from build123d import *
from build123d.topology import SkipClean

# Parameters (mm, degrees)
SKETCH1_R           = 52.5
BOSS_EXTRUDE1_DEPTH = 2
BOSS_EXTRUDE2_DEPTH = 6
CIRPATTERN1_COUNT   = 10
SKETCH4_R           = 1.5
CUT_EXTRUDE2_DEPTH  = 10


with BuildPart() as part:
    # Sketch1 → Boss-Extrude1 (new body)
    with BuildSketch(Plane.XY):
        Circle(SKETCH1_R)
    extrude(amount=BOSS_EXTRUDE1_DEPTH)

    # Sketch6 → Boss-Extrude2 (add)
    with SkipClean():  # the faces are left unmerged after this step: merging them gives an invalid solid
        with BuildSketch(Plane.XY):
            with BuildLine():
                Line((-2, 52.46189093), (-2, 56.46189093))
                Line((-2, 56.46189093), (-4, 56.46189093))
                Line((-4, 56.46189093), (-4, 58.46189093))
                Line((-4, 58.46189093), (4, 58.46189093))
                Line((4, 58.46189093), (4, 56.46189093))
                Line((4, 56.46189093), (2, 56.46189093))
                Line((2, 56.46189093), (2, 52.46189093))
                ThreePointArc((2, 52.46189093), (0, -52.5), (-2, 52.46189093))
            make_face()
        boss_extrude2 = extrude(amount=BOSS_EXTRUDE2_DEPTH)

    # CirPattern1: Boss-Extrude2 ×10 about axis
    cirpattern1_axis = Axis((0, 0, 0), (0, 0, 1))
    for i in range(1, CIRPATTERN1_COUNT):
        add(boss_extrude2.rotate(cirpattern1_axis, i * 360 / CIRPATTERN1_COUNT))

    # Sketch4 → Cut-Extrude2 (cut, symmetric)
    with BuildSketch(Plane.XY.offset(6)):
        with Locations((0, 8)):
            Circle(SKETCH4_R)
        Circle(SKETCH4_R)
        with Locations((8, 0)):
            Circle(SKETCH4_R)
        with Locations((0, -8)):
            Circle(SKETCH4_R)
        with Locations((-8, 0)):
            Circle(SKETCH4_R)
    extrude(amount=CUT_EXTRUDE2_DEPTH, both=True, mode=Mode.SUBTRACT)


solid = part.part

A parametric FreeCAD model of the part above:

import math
import FreeCAD as App
import Part
import Sketcher

V = App.Vector
Q = App.Units.Quantity

doc = App.newDocument("Part")
body = doc.addObject("PartDesign::Body", "Body")

sketch1 = body.newObject("Sketcher::SketchObject", "Sketch")
sketch1.AttachmentSupport = (doc.getObject("XY_Plane"), [""])
sketch1.MapMode = "FlatFace"
sketch1.addGeometry(Part.Circle(V(0, 0, 0), V(0, 0, 1), 52.5), False)
sketch1.addConstraint(Sketcher.Constraint("Coincident", 0, 3, -1, 1))
sketch1.addConstraint(Sketcher.Constraint("Diameter", 0, Q("105 mm")))
pad1 = body.newObject("PartDesign::Pad", "Pad")
pad1.Profile = sketch1
pad1.Length = 2

sketch2 = body.newObject("Sketcher::SketchObject", "Sketch001")
sketch2.AttachmentSupport = (doc.getObject("XY_Plane"), [""])
sketch2.MapMode = "FlatFace"
sketch2.addGeometry(Part.LineSegment(V(-2, 56.461891, 0), V(-2, 52.461891, 0)), False)
sketch2.addGeometry(Part.ArcOfCircle(Part.Circle(V(0, 0, 0), V(0, 0, 1), 52.5), math.radians(92.183225), math.radians(447.816775)), False)
sketch2.addGeometry(Part.LineSegment(V(2, 52.461891, 0), V(2, 56.461891, 0)), False)
sketch2.addGeometry(Part.LineSegment(V(2, 56.461891, 0), V(4, 56.461891, 0)), False)
sketch2.addGeometry(Part.LineSegment(V(4, 56.461891, 0), V(4, 58.461891, 0)), False)
sketch2.addGeometry(Part.LineSegment(V(4, 58.461891, 0), V(-4, 58.461891, 0)), False)
sketch2.addGeometry(Part.LineSegment(V(-4, 58.461891, 0), V(-4, 56.461891, 0)), False)
sketch2.addGeometry(Part.LineSegment(V(-4, 56.461891, 0), V(-2, 56.461891, 0)), False)
sketch2.addConstraint(Sketcher.Constraint("Coincident", 0, 2, 1, 1))
sketch2.addConstraint(Sketcher.Constraint("Coincident", 1, 2, 2, 1))
sketch2.addConstraint(Sketcher.Constraint("Coincident", 2, 2, 3, 1))
sketch2.addConstraint(Sketcher.Constraint("Coincident", 3, 2, 4, 1))
sketch2.addConstraint(Sketcher.Constraint("Coincident", 4, 2, 5, 1))
sketch2.addConstraint(Sketcher.Constraint("Coincident", 5, 2, 6, 1))
sketch2.addConstraint(Sketcher.Constraint("Coincident", 6, 2, 7, 1))
sketch2.addConstraint(Sketcher.Constraint("Coincident", 7, 2, 0, 1))
sketch2.addConstraint(Sketcher.Constraint("Vertical", 0))
sketch2.addConstraint(Sketcher.Constraint("Vertical", 2))
sketch2.addConstraint(Sketcher.Constraint("Horizontal", 3))
sketch2.addConstraint(Sketcher.Constraint("Vertical", 4))
sketch2.addConstraint(Sketcher.Constraint("Horizontal", 5))
sketch2.addConstraint(Sketcher.Constraint("Vertical", 6))
sketch2.addConstraint(Sketcher.Constraint("Horizontal", 7))
sketch2.addConstraint(Sketcher.Constraint("Coincident", 1, 3, -1, 1))
sketch2.addConstraint(Sketcher.Constraint("Symmetric", 3, 2, 6, 2, -2))
sketch2.addConstraint(Sketcher.Constraint("Horizontal", 0, 2, 1, 2))
sketch2.addConstraint(Sketcher.Constraint("Equal", 7, 4))
sketch2.addConstraint(Sketcher.Constraint("Radius", 1, Q("52.5 mm")))
sketch2.addConstraint(Sketcher.Constraint("DistanceX", 3, 1, 3, 2, Q("2 mm")))
sketch2.addConstraint(Sketcher.Constraint("DistanceX", 5, 2, 5, 1, Q("8 mm")))
sketch2.addConstraint(Sketcher.Constraint("DistanceY", 0, 2, 0, 1, Q("4 mm")))
pad2 = body.newObject("PartDesign::Pad", "Pad001")
pad2.Profile = sketch2
pad2.Length = 6
doc.recompute()

polarpattern = body.newObject("PartDesign::PolarPattern", "PolarPattern")
polarpattern.Originals = [pad2]
polarpattern.Axis = (doc.getObject("Z_Axis"), [""])
polarpattern.Angle = 360
polarpattern.Occurrences = 10
body.Tip = polarpattern

sketch3 = body.newObject("Sketcher::SketchObject", "Sketch002")
sketch3.AttachmentSupport = (doc.getObject("XY_Plane"), [""])
sketch3.MapMode = "FlatFace"
sketch3.AttachmentOffset = App.Placement(V(0, 0, 6), App.Rotation())
sketch3.addGeometry(Part.Circle(V(0, 8, 0), V(0, 0, 1), 1.5), False)
sketch3.addGeometry(Part.Circle(V(0, 0, 0), V(0, 0, 1), 1.5), False)
sketch3.addGeometry(Part.Circle(V(8, 0, 0), V(0, 0, 1), 1.5), False)
sketch3.addGeometry(Part.Circle(V(0, -8, 0), V(0, 0, 1), 1.5), False)
sketch3.addGeometry(Part.Circle(V(-8, 0, 0), V(0, 0, 1), 1.5), False)
sketch3.addConstraint(Sketcher.Constraint("Coincident", 1, 3, -1, 1))
sketch3.addConstraint(Sketcher.Constraint("Equal", 0, 1))
sketch3.addConstraint(Sketcher.Constraint("Equal", 1, 2))
sketch3.addConstraint(Sketcher.Constraint("Equal", 2, 3))
sketch3.addConstraint(Sketcher.Constraint("Equal", 3, 4))
sketch3.addConstraint(Sketcher.Constraint("Symmetric", 0, 3, 3, 3, -1, 1))
sketch3.addConstraint(Sketcher.Constraint("Symmetric", 2, 3, 4, 3, -1, 1))
sketch3.addConstraint(Sketcher.Constraint("PointOnObject", 0, 3, -2))
sketch3.addConstraint(Sketcher.Constraint("PointOnObject", 2, 3, -1))
sketch3.addConstraint(Sketcher.Constraint("Diameter", 0, Q("3 mm")))
sketch3.addConstraint(Sketcher.Constraint("DistanceY", -1, 1, 0, 3, Q("8 mm")))
sketch3.addConstraint(Sketcher.Constraint("DistanceX", -1, 1, 2, 3, Q("8 mm")))
pocket1 = body.newObject("PartDesign::Pocket", "Pocket")
pocket1.Profile = sketch3
pocket1.Length = 20
pocket1.Midplane = True

doc.recompute()
